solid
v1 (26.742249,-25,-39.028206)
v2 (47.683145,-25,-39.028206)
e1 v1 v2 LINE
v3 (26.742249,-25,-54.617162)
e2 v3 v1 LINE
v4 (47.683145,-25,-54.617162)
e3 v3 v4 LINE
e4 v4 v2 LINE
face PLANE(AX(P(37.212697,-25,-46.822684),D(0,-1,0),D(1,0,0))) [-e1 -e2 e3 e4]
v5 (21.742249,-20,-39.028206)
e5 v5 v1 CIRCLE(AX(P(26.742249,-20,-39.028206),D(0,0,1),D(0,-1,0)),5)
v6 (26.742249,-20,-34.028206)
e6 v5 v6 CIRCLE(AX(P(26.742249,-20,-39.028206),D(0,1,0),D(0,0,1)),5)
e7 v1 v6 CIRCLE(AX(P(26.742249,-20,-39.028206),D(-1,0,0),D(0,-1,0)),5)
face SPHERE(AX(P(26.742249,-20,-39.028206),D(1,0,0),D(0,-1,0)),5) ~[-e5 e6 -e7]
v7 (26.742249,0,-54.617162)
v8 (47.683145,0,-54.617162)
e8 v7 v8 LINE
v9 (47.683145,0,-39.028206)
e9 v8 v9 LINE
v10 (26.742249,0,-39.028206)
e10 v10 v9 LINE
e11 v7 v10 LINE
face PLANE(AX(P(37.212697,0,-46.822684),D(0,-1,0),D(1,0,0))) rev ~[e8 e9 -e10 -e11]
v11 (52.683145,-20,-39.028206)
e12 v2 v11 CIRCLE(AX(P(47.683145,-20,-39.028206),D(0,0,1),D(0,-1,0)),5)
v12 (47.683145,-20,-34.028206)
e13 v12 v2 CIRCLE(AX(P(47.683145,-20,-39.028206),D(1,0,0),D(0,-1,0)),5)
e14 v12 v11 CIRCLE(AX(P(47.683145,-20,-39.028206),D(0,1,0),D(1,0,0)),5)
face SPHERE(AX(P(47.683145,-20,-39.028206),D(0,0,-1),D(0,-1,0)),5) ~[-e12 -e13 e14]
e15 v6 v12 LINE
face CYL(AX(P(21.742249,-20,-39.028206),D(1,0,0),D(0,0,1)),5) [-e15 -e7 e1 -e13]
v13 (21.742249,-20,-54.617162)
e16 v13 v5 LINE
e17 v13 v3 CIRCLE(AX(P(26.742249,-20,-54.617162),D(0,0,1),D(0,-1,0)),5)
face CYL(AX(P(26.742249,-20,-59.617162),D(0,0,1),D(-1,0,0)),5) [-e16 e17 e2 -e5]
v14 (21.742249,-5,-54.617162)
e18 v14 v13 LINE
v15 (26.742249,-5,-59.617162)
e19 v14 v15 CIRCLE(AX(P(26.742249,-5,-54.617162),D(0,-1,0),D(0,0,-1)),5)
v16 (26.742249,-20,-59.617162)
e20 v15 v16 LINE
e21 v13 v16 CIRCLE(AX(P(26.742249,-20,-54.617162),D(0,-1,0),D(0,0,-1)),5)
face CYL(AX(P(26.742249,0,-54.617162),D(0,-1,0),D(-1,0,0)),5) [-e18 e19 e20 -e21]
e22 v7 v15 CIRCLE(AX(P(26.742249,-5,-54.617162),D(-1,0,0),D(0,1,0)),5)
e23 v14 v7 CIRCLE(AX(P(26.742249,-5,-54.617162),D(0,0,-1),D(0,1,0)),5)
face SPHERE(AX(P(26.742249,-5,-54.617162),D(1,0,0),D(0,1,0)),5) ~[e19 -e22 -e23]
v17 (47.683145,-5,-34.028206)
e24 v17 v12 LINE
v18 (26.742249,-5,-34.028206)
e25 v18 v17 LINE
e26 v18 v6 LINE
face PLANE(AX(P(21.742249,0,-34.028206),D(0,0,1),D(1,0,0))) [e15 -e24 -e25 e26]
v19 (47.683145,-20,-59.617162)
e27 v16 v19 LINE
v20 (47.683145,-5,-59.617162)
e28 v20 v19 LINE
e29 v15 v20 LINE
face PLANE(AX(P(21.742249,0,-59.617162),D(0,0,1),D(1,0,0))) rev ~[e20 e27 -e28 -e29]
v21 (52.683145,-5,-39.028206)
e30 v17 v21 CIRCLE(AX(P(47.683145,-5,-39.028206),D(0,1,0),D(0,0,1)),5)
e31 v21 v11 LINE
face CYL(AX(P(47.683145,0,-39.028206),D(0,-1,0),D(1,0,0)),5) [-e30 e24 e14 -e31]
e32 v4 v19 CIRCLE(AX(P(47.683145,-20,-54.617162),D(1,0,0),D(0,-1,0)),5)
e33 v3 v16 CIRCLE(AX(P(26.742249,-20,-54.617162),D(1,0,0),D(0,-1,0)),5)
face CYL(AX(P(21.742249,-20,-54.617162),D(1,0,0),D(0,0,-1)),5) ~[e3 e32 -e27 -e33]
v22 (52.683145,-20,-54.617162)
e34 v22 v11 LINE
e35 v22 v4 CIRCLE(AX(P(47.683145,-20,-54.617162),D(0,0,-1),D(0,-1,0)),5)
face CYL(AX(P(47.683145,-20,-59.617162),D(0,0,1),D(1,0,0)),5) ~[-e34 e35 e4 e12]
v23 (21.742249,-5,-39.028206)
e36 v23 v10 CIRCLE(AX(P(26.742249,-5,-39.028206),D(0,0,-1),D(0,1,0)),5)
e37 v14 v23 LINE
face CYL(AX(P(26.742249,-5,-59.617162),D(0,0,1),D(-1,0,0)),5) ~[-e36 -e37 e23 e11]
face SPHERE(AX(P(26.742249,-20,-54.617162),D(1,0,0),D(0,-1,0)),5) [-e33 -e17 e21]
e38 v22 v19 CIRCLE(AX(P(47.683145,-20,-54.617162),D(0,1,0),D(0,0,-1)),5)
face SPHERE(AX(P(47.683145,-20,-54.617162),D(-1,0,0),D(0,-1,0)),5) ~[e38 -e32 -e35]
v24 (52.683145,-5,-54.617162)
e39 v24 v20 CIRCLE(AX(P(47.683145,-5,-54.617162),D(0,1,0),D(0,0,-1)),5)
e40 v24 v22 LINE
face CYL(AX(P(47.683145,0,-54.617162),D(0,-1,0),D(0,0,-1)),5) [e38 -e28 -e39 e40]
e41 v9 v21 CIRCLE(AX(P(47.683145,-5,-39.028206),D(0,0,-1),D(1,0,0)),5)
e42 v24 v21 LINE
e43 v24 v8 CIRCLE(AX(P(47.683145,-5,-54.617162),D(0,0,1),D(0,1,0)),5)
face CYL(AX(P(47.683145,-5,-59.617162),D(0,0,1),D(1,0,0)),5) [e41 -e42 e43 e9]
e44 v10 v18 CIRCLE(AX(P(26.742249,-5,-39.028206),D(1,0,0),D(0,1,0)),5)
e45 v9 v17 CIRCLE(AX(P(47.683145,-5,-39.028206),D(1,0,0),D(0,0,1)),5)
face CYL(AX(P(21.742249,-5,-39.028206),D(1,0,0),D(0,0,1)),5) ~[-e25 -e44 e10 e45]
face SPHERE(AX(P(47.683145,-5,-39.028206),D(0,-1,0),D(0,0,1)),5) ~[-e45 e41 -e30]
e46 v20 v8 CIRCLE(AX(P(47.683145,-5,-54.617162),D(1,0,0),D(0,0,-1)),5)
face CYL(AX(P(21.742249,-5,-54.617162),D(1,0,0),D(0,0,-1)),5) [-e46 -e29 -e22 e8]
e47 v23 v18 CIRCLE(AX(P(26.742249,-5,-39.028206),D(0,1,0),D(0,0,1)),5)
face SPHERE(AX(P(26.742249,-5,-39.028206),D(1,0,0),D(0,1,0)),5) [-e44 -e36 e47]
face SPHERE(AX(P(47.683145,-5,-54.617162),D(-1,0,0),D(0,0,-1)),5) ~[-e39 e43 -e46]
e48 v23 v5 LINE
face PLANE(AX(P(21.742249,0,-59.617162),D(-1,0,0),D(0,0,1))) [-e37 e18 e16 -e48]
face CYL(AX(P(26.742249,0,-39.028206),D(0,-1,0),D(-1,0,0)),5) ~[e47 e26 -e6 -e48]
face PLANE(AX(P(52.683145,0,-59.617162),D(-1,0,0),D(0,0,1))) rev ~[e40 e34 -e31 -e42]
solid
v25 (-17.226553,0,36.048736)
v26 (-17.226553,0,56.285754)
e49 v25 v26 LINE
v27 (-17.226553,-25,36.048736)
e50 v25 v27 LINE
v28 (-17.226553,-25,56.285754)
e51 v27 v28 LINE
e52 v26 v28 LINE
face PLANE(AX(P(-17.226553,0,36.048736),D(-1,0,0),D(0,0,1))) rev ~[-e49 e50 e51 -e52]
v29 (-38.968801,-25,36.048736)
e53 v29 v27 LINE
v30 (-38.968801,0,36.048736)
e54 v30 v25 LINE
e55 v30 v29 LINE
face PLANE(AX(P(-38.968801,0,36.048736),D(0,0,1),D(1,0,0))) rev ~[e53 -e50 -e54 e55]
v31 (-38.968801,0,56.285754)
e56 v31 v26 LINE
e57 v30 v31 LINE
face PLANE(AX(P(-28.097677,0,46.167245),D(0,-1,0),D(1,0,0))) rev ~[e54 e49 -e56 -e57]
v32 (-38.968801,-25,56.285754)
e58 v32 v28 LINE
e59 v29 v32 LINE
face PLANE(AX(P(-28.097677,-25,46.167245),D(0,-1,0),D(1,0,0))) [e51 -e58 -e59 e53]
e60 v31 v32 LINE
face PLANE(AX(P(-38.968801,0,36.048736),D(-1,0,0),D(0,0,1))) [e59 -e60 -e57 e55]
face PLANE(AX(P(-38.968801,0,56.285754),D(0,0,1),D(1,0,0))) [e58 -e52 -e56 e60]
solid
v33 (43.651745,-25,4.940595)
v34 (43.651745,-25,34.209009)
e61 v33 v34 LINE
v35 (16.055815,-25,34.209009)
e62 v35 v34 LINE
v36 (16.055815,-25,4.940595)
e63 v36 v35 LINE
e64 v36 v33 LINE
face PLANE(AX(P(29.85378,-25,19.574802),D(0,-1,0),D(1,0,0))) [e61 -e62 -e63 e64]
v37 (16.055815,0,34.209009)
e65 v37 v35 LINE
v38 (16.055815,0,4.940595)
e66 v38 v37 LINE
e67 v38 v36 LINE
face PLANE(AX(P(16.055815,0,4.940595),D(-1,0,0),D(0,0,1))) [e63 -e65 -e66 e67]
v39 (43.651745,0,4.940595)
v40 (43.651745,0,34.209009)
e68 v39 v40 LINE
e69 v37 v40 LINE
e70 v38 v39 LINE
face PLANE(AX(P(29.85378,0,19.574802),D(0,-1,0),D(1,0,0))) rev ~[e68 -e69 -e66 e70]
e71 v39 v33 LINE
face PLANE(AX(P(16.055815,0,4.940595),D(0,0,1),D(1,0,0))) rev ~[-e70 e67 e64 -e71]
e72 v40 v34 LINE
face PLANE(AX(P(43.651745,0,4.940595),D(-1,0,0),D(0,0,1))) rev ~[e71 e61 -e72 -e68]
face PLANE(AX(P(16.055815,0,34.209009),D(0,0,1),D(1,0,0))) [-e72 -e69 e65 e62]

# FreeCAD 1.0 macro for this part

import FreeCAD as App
import Part
import Sketcher


def add_polygon(sketch, points):
    """Adds a closed chain of lines whose ends are joined by coincident constraints."""
    first, n = sketch.GeometryCount, len(points)
    for a, b in zip(points, points[1:] + points[:1]):
        sketch.addGeometry(Part.LineSegment(App.Vector(*a, 0), App.Vector(*b, 0)), False)
    for i in range(n):
        sketch.addConstraint(Sketcher.Constraint("Coincident", first + i, 2, first + (i + 1) % n, 1))

doc = App.newDocument("Part")
body = doc.addObject("PartDesign::Body", "Body")

# Sketch on XZ plane
sketch1 = body.newObject("Sketcher::SketchObject", "Sketch")
sketch1.AttachmentSupport = (doc.getObject("XZ_Plane"), [""])
sketch1.MapMode = "FlatFace"
add_polygon(sketch1, [(-39, 56), (-39, 36), (-17, 36), (-17, 56)])  # lines 0-3
sketch1.addConstraint(Sketcher.Constraint("Vertical", 0))
sketch1.addConstraint(Sketcher.Constraint("Horizontal", 1))
sketch1.addConstraint(Sketcher.Constraint("Vertical", 2))
sketch1.addConstraint(Sketcher.Constraint("Horizontal", 3))
sketch1.addConstraint(Sketcher.Constraint("DistanceX", 1, 1, 1, 2, 21.742249))
sketch1.addConstraint(Sketcher.Constraint("DistanceX", 0, 2, -1, 1, 38.968801))
sketch1.addConstraint(Sketcher.Constraint("DistanceY", 0, 2, 0, 1, 20.237017))
sketch1.addConstraint(Sketcher.Constraint("DistanceY", -1, 1, 0, 2, 36.048736))
pad1 = body.newObject("PartDesign::Pad", "Pad")
pad1.Profile = sketch1
pad1.Length = 25
body2 = doc.addObject("PartDesign::Body", "Body001")

# Sketch on XZ plane
sketch2 = body2.newObject("Sketcher::SketchObject", "Sketch001")
sketch2.AttachmentSupport = (doc.getObject("XZ_Plane001"), [""])
sketch2.MapMode = "FlatFace"
add_polygon(sketch2, [(16, 34), (16, 5), (44, 5), (44, 34)])  # lines 0-3
sketch2.addConstraint(Sketcher.Constraint("Vertical", 0))
sketch2.addConstraint(Sketcher.Constraint("Horizontal", 1))
sketch2.addConstraint(Sketcher.Constraint("Vertical", 2))
sketch2.addConstraint(Sketcher.Constraint("Horizontal", 3))
sketch2.addConstraint(Sketcher.Constraint("DistanceX", 1, 1, 1, 2, 27.59593))
sketch2.addConstraint(Sketcher.Constraint("DistanceY", 0, 2, 0, 1, 29.268414))
sketch2.addConstraint(Sketcher.Constraint("DistanceY", -1, 1, 2, 2, 34.209009))
sketch2.addConstraint(Sketcher.Constraint("DistanceX", -1, 1, 0, 2, 16.055815))
pad2 = body2.newObject("PartDesign::Pad", "Pad001")
pad2.Profile = sketch2
pad2.Length = 25
body3 = doc.addObject("PartDesign::Body", "Body002")

# Sketch on XZ plane
sketch3 = body3.newObject("Sketcher::SketchObject", "Sketch002")
sketch3.AttachmentSupport = (doc.getObject("XZ_Plane002"), [""])
sketch3.MapMode = "FlatFace"
add_polygon(sketch3, [(-34, -33), (-34, -50), (-10, -50), (-10, -33)])  # lines 0-3
sketch3.addConstraint(Sketcher.Constraint("Vertical", 0))
sketch3.addConstraint(Sketcher.Constraint("Horizontal", 1))
sketch3.addConstraint(Sketcher.Constraint("Vertical", 2))
sketch3.addConstraint(Sketcher.Constraint("Horizontal", 3))
sketch3.addConstraint(Sketcher.Constraint("DistanceX", 1, 1, 1, 2, 24.083721))
sketch3.addConstraint(Sketcher.Constraint("DistanceY", 0, 2, 0, 1, 16.223062))
sketch3.addConstraint(Sketcher.Constraint("DistanceX", 0, 2, -1, 1, 34.453101))
sketch3.addConstraint(Sketcher.Constraint("DistanceY", 0, 2, -1, 1, 49.582276))
pad3 = body3.newObject("PartDesign::Pad", "Pad002")
pad3.Profile = sketch3
pad3.Length = 25
body4 = doc.addObject("PartDesign::Body", "Body003")

# Sketch on XZ plane
sketch4 = body4.newObject("Sketcher::SketchObject", "Sketch003")
sketch4.AttachmentSupport = (doc.getObject("XZ_Plane003"), [""])
sketch4.MapMode = "FlatFace"
add_polygon(sketch4, [(22, -34), (22, -60), (53, -60), (53, -34)])  # lines 0-3
sketch4.addConstraint(Sketcher.Constraint("Vertical", 0))
sketch4.addConstraint(Sketcher.Constraint("Horizontal", 1))
sketch4.addConstraint(Sketcher.Constraint("Vertical", 2))
sketch4.addConstraint(Sketcher.Constraint("Horizontal", 3))
sketch4.addConstraint(Sketcher.Constraint("DistanceX", 1, 1, 1, 2, 30.940896))
sketch4.addConstraint(Sketcher.Constraint("DistanceY", 0, 2, 0, 1, 25.588956))
sketch4.addConstraint(Sketcher.Constraint("DistanceX", -1, 1, 0, 2, 21.742249))
sketch4.addConstraint(Sketcher.Constraint("DistanceY", 0, 2, -1, 1, 59.617162))
pad4 = body4.newObject("PartDesign::Pad", "Pad003")
pad4.Profile = sketch4
pad4.Length = 25
doc.recompute()

fillet = body4.newObject("PartDesign::Fillet", "Fillet")
fillet.Base = (pad4, ["Edge1"])
fillet.UseAllEdges = True
fillet.Radius = 5
body3.Visibility = False

doc.recompute()
